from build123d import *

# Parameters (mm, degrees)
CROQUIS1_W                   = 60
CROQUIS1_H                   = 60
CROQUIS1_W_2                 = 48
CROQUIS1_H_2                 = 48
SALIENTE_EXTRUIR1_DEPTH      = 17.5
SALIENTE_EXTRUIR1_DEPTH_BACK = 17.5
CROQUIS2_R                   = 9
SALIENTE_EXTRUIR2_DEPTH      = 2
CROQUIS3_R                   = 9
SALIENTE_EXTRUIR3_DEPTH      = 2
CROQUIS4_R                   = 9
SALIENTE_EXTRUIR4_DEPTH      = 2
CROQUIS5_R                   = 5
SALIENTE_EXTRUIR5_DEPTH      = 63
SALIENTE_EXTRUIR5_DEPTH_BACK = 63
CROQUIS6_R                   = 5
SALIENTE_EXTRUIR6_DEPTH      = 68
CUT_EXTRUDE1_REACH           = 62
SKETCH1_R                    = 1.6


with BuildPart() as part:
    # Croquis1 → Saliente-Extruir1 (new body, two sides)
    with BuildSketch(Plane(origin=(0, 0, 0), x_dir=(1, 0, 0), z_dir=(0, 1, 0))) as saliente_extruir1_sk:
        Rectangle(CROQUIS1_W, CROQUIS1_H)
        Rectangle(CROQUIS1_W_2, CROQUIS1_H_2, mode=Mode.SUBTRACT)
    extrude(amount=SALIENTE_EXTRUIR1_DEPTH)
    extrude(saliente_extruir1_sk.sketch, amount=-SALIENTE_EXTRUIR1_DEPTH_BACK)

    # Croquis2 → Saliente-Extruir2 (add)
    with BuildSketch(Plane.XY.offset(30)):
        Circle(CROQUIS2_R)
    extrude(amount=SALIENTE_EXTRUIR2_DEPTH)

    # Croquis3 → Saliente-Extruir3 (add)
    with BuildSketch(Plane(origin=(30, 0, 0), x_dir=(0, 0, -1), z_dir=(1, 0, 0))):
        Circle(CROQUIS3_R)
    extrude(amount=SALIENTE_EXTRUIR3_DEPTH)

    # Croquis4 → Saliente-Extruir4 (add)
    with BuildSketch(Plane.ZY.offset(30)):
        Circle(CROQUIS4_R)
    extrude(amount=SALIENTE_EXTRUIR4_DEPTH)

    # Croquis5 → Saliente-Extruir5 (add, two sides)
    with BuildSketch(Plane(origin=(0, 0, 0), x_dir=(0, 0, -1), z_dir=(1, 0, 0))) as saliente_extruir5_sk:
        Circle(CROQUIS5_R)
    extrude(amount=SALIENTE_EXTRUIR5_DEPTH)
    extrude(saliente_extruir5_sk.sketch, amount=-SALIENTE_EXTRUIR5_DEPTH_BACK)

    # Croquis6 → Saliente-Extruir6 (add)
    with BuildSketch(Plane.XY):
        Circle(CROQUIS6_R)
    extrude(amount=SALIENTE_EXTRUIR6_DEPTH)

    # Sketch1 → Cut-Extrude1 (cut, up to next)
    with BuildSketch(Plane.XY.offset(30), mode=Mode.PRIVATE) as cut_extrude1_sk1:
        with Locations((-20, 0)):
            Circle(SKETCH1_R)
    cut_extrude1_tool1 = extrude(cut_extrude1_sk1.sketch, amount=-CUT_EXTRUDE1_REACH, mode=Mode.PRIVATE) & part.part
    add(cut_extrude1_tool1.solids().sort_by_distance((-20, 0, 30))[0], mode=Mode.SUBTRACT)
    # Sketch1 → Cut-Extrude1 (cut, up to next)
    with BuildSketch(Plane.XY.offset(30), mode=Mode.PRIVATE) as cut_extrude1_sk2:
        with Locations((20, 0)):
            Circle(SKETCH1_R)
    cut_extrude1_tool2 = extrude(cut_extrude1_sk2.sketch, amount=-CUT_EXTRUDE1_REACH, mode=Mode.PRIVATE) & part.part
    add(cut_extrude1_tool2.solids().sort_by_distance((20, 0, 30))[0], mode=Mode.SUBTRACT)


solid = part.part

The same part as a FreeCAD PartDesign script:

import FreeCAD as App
import Part
import Sketcher

V = App.Vector


def add_polygon(sketch, points):
    """Adds a closed chain of lines whose ends are joined by coincident constraints."""
    first, n = sketch.GeometryCount, len(points)
    for a, b in zip(points, points[1:] + points[:1]):
        sketch.addGeometry(Part.LineSegment(App.Vector(*a, 0), App.Vector(*b, 0)), False)
    for i in range(n):
        sketch.addConstraint(Sketcher.Constraint("Coincident", first + i, 2, first + (i + 1) % n, 1))

doc = App.newDocument("Part")
body = doc.addObject("PartDesign::Body", "Body")

sketch1 = doc.addObject("Sketcher::SketchObject", "Sketch")
body.addObject(sketch1)
sketch1.AttachmentSupport = (doc.XZ_Plane, [""])
sketch1.MapMode = "FlatFace"
add_polygon(sketch1, [(-30, -30), (-30, 30), (30, 30), (30, -30)])
add_polygon(sketch1, [(24, 24), (-24, 24), (-24, -24), (24, -24)])
sketch1.addConstraint([
    Sketcher.Constraint("Vertical", 0),
    Sketcher.Constraint("Horizontal", 1),
    Sketcher.Constraint("Vertical", 2),
    Sketcher.Constraint("Horizontal", 3),
    Sketcher.Constraint("Horizontal", 4),
    Sketcher.Constraint("Vertical", 5),
    Sketcher.Constraint("Horizontal", 6),
    Sketcher.Constraint("Vertical", 7),
    Sketcher.Constraint("Symmetric", 0, 2, 2, 2, -1, 1),
    Sketcher.Constraint("Symmetric", 4, 2, 6, 2, -1, 1),
    Sketcher.Constraint("Equal", 3, 0),
    Sketcher.Constraint("Equal", 6, 5),
    Sketcher.Constraint("DistanceX", 1, 1, 1, 2, 60.0),
    Sketcher.Constraint("DistanceX", 4, 2, 4, 1, 48.0),
])
pad1 = doc.addObject("PartDesign::Pad", "Pad")
body.addObject(pad1)
pad1.Profile = sketch1
pad1.Type = "TwoLengths"
pad1.Length = 17.5
pad1.Length2 = 17.5
pad1.Reversed = True

sketch2 = doc.addObject("Sketcher::SketchObject", "Sketch001")
body.addObject(sketch2)
sketch2.AttachmentSupport = (doc.XY_Plane, [""])
sketch2.MapMode = "FlatFace"
sketch2.AttachmentOffset = App.Placement(V(0, 0, 30), App.Rotation())
sketch2.addGeometry(Part.Circle(V(0, 0, 0), V(0, 0, 1), 9), False)
sketch2.addConstraint([
    Sketcher.Constraint("Coincident", 0, 3, -1, 1),
    Sketcher.Constraint("Diameter", 0, 18.0),
])
pad2 = doc.addObject("PartDesign::Pad", "Pad001")
body.addObject(pad2)
pad2.Profile = sketch2
pad2.Length = 2

sketch3 = doc.addObject("Sketcher::SketchObject", "Sketch002")
body.addObject(sketch3)
sketch3.AttachmentSupport = (doc.YZ_Plane, [""])
sketch3.MapMode = "FlatFace"
sketch3.AttachmentOffset = App.Placement(V(0, 0, 30), App.Rotation())
sketch3.addGeometry(Part.Circle(V(0, 0, 0), V(0, 0, 1), 9), False)
sketch3.addConstraint([
    Sketcher.Constraint("Coincident", 0, 3, -1, 1),
    Sketcher.Constraint("Diameter", 0, 18.0),
])
pad3 = doc.addObject("PartDesign::Pad", "Pad002")
body.addObject(pad3)
pad3.Profile = sketch3
pad3.Length = 2

sketch4 = doc.addObject("Sketcher::SketchObject", "Sketch003")
body.addObject(sketch4)
sketch4.AttachmentSupport = (doc.YZ_Plane, [""])
sketch4.MapMode = "FlatFace"
sketch4.AttachmentOffset = App.Placement(V(0, 0, -30), App.Rotation())
sketch4.addGeometry(Part.Circle(V(0, 0, 0), V(0, 0, 1), 9), False)
sketch4.addConstraint([
    Sketcher.Constraint("Coincident", 0, 3, -1, 1),
    Sketcher.Constraint("Diameter", 0, 18.0),
])
pad4 = doc.addObject("PartDesign::Pad", "Pad003")
body.addObject(pad4)
pad4.Profile = sketch4
pad4.Length = 2
pad4.Reversed = True

sketch5 = doc.addObject("Sketcher::SketchObject", "Sketch004")
body.addObject(sketch5)
sketch5.AttachmentSupport = (doc.YZ_Plane, [""])
sketch5.MapMode = "FlatFace"
sketch5.addGeometry(Part.Circle(V(0, 0, 0), V(0, 0, 1), 5), False)
sketch5.addConstraint([
    Sketcher.Constraint("Coincident", 0, 3, -1, 1),
    Sketcher.Constraint("Diameter", 0, 10.0),
])
pad5 = doc.addObject("PartDesign::Pad", "Pad004")
body.addObject(pad5)
pad5.Profile = sketch5
pad5.Type = "TwoLengths"
pad5.Length = 63
pad5.Length2 = 63

sketch6 = doc.addObject("Sketcher::SketchObject", "Sketch005")
body.addObject(sketch6)
sketch6.AttachmentSupport = (doc.XY_Plane, [""])
sketch6.MapMode = "FlatFace"
sketch6.addGeometry(Part.Circle(V(0, 0, 0), V(0, 0, 1), 5), False)
sketch6.addConstraint([
    Sketcher.Constraint("Coincident", 0, 3, -1, 1),
    Sketcher.Constraint("Diameter", 0, 10.0),
])
pad6 = doc.addObject("PartDesign::Pad", "Pad005")
body.addObject(pad6)
pad6.Profile = sketch6
pad6.Length = 68

sketch7 = doc.addObject("Sketcher::SketchObject", "Sketch006")
body.addObject(sketch7)
sketch7.AttachmentSupport = (doc.XY_Plane, [""])
sketch7.MapMode = "FlatFace"
sketch7.AttachmentOffset = App.Placement(V(0, 0, 30), App.Rotation())
sketch7.addGeometry(Part.Circle(V(-20, 0, 0), V(0, 0, 1), 1.6), False)
sketch7.addConstraint([
    Sketcher.Constraint("PointOnObject", 0, 3, -1),
    Sketcher.Constraint("Diameter", 0, 3.2),
    Sketcher.Constraint("DistanceX", 0, 3, -1, 1, 20.0),
])
pocket1 = doc.addObject("PartDesign::Pocket", "Pocket")
body.addObject(pocket1)
pocket1.Profile = sketch7
pocket1.Type = "UpToFirst"

sketch8 = doc.addObject("Sketcher::SketchObject", "Sketch007")
body.addObject(sketch8)
sketch8.AttachmentSupport = (doc.XY_Plane, [""])
sketch8.MapMode = "FlatFace"
sketch8.AttachmentOffset = App.Placement(V(0, 0, 30), App.Rotation())
sketch8.addGeometry(Part.Circle(V(20, 0, 0), V(0, 0, 1), 1.6), False)
sketch8.addConstraint([
    Sketcher.Constraint("PointOnObject", 0, 3, -1),
    Sketcher.Constraint("Diameter", 0, 3.2),
    Sketcher.Constraint("DistanceX", -1, 1, 0, 3, 20.0),
])
pocket2 = doc.addObject("PartDesign::Pocket", "Pocket001")
body.addObject(pocket2)
pocket2.Profile = sketch8
pocket2.Type = "UpToFirst"

doc.recompute()
